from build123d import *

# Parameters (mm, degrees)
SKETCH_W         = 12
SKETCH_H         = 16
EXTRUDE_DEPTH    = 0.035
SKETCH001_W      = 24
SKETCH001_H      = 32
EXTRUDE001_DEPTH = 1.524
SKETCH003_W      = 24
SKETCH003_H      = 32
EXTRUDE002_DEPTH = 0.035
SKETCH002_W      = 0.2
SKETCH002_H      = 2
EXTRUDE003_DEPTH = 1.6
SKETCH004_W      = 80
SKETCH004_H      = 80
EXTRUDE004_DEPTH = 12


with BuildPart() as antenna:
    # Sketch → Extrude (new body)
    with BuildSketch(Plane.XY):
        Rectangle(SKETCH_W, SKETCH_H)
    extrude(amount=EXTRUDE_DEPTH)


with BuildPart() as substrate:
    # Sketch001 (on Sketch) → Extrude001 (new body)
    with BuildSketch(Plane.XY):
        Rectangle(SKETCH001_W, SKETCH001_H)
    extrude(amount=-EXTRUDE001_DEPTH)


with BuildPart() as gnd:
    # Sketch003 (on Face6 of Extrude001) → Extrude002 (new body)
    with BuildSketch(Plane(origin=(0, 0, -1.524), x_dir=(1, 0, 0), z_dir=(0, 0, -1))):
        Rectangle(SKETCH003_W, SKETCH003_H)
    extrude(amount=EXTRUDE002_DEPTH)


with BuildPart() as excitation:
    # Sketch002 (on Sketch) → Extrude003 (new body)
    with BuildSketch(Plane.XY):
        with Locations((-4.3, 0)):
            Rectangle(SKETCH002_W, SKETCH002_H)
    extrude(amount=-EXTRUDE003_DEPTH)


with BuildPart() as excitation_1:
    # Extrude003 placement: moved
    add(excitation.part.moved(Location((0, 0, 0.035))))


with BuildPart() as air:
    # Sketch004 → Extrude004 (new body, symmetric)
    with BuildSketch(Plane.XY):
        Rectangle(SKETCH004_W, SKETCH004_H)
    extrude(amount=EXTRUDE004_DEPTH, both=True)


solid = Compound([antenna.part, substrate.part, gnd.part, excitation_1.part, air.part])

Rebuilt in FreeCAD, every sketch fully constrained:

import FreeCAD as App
import Part
import Sketcher

V = App.Vector

doc = App.newDocument("Part")
params = doc.addObject("Spreadsheet::Sheet", "Params")
for row, (alias, value) in enumerate([
    ("sketch1_width", "12 mm"),
    ("sketch1_height", "16 mm"),
    ("pad1_length", "0.035 mm"),
    ("sketch2_width", "24 mm"),
    ("sketch2_height", "32 mm"),
    ("pad2_length", "1.524 mm"),
    ("sketch3_width", "24 mm"),
    ("sketch3_height", "32 mm"),
    ("pad3_length", "0.035 mm"),
    ("sketch4_height", "2 mm"),
    ("sketch4_width", "0.2 mm"),
    ("pad4_length", "1.6 mm"),
    ("sketch5_width", "80 mm"),
    ("pad5_length", "24 mm"),
], start=1):
    params.set(f"A{row}", alias)
    params.set(f"B{row}", "=" + value)
    params.setAlias(f"B{row}", alias)

body = doc.addObject("PartDesign::Body", "Body")

# Sketch on XY plane
sketch1 = body.newObject("Sketcher::SketchObject", "Sketch")
sketch1.AttachmentSupport = (doc.getObject("XY_Plane"), [""])
sketch1.MapMode = "FlatFace"
sketch1.addGeometry(Part.LineSegment(V(-6, 8, 0), V(-6, -8, 0)), False)
sketch1.addGeometry(Part.LineSegment(V(-6, -8, 0), V(6, -8, 0)), False)
sketch1.addGeometry(Part.LineSegment(V(6, -8, 0), V(6, 8, 0)), False)
sketch1.addGeometry(Part.LineSegment(V(6, 8, 0), V(-6, 8, 0)), False)
sketch1.addConstraint(Sketcher.Constraint("Coincident", 0, 2, 1, 1))
sketch1.addConstraint(Sketcher.Constraint("Coincident", 1, 2, 2, 1))
sketch1.addConstraint(Sketcher.Constraint("Coincident", 2, 2, 3, 1))
sketch1.addConstraint(Sketcher.Constraint("Coincident", 3, 2, 0, 1))
sketch1.addConstraint(Sketcher.Constraint("Vertical", 0))
sketch1.addConstraint(Sketcher.Constraint("Horizontal", 1))
sketch1.addConstraint(Sketcher.Constraint("Vertical", 2))
sketch1.addConstraint(Sketcher.Constraint("Horizontal", 3))
sketch1.addConstraint(Sketcher.Constraint("Symmetric", 0, 2, 2, 2, -1, 1))
sketch1.addConstraint(Sketcher.Constraint("DistanceX", 1, 1, 1, 2, 12.0))
sketch1.addConstraint(Sketcher.Constraint("DistanceY", 0, 2, 0, 1, 16.0))
sketch1.setExpression("Constraints[9]", "Params.sketch1_width")
sketch1.setExpression("Constraints[10]", "Params.sketch1_height")
pad1 = body.newObject("PartDesign::Pad", "Pad")
pad1.Profile = sketch1
pad1.setExpression("Length", "Params.pad1_length")
body2 = doc.addObject("PartDesign::Body", "Body001")

# Sketch on XY plane
sketch2 = body2.newObject("Sketcher::SketchObject", "Sketch001")
sketch2.AttachmentSupport = (doc.getObject("XY_Plane001"), [""])
sketch2.MapMode = "FlatFace"
sketch2.addGeometry(Part.LineSegment(V(-12, 16, 0), V(-12, -16, 0)), False)
sketch2.addGeometry(Part.LineSegment(V(-12, -16, 0), V(12, -16, 0)), False)
sketch2.addGeometry(Part.LineSegment(V(12, -16, 0), V(12, 16, 0)), False)
sketch2.addGeometry(Part.LineSegment(V(12, 16, 0), V(-12, 16, 0)), False)
sketch2.addConstraint(Sketcher.Constraint("Coincident", 0, 2, 1, 1))
sketch2.addConstraint(Sketcher.Constraint("Coincident", 1, 2, 2, 1))
sketch2.addConstraint(Sketcher.Constraint("Coincident", 2, 2, 3, 1))
sketch2.addConstraint(Sketcher.Constraint("Coincident", 3, 2, 0, 1))
sketch2.addConstraint(Sketcher.Constraint("Vertical", 0))
sketch2.addConstraint(Sketcher.Constraint("Horizontal", 1))
sketch2.addConstraint(Sketcher.Constraint("Vertical", 2))
sketch2.addConstraint(Sketcher.Constraint("Horizontal", 3))
sketch2.addConstraint(Sketcher.Constraint("Symmetric", 0, 2, 2, 2, -1, 1))
sketch2.addConstraint(Sketcher.Constraint("DistanceX", 1, 1, 1, 2, 24.0))
sketch2.addConstraint(Sketcher.Constraint("DistanceY", 0, 2, 0, 1, 32.0))
sketch2.setExpression("Constraints[9]", "Params.sketch2_width")
sketch2.setExpression("Constraints[10]", "Params.sketch2_height")
pad2 = body2.newObject("PartDesign::Pad", "Pad001")
pad2.Profile = sketch2
pad2.setExpression("Length", "Params.pad2_length")
pad2.Reversed = True
body3 = doc.addObject("PartDesign::Body", "Body002")

# Sketch on XY plane
sketch3 = body3.newObject("Sketcher::SketchObject", "Sketch002")
sketch3.AttachmentSupport = (doc.getObject("XY_Plane002"), [""])
sketch3.MapMode = "FlatFace"
sketch3.AttachmentOffset = App.Placement(V(0, 0, -1.524), App.Rotation())
sketch3.addGeometry(Part.LineSegment(V(-12, -16, 0), V(-12, 16, 0)), False)
sketch3.addGeometry(Part.LineSegment(V(-12, 16, 0), V(12, 16, 0)), False)
sketch3.addGeometry(Part.LineSegment(V(12, 16, 0), V(12, -16, 0)), False)
sketch3.addGeometry(Part.LineSegment(V(12, -16, 0), V(-12, -16, 0)), False)
sketch3.addConstraint(Sketcher.Constraint("Coincident", 0, 2, 1, 1))
sketch3.addConstraint(Sketcher.Constraint("Coincident", 1, 2, 2, 1))
sketch3.addConstraint(Sketcher.Constraint("Coincident", 2, 2, 3, 1))
sketch3.addConstraint(Sketcher.Constraint("Coincident", 3, 2, 0, 1))
sketch3.addConstraint(Sketcher.Constraint("Vertical", 0))
sketch3.addConstraint(Sketcher.Constraint("Horizontal", 1))
sketch3.addConstraint(Sketcher.Constraint("Vertical", 2))
sketch3.addConstraint(Sketcher.Constraint("Horizontal", 3))
sketch3.addConstraint(Sketcher.Constraint("Symmetric", 0, 2, 2, 2, -1, 1))
sketch3.addConstraint(Sketcher.Constraint("DistanceX", 1, 1, 1, 2, 24.0))
sketch3.addConstraint(Sketcher.Constraint("DistanceY", 0, 1, 0, 2, 32.0))
sketch3.setExpression("Constraints[9]", "Params.sketch3_width")
sketch3.setExpression("Constraints[10]", "Params.sketch3_height")
pad3 = body3.newObject("PartDesign::Pad", "Pad002")
pad3.Profile = sketch3
pad3.setExpression("Length", "Params.pad3_length")
pad3.Reversed = True
body4 = doc.addObject("PartDesign::Body", "Body003")

# Sketch on XY plane
sketch4 = body4.newObject("Sketcher::SketchObject", "Sketch003")
sketch4.AttachmentSupport = (doc.getObject("XY_Plane003"), [""])
sketch4.MapMode = "FlatFace"
sketch4.addGeometry(Part.LineSegment(V(-4.4, 1, 0), V(-4.4, -1, 0)), False)
sketch4.addGeometry(Part.LineSegment(V(-4.4, -1, 0), V(-4.2, -1, 0)), False)
sketch4.addGeometry(Part.LineSegment(V(-4.2, -1, 0), V(-4.2, 1, 0)), False)
sketch4.addGeometry(Part.LineSegment(V(-4.2, 1, 0), V(-4.4, 1, 0)), False)
sketch4.addConstraint(Sketcher.Constraint("Coincident", 0, 2, 1, 1))
sketch4.addConstraint(Sketcher.Constraint("Coincident", 1, 2, 2, 1))
sketch4.addConstraint(Sketcher.Constraint("Coincident", 2, 2, 3, 1))
sketch4.addConstraint(Sketcher.Constraint("Coincident", 3, 2, 0, 1))
sketch4.addConstraint(Sketcher.Constraint("Vertical", 0))
sketch4.addConstraint(Sketcher.Constraint("Horizontal", 1))
sketch4.addConstraint(Sketcher.Constraint("Vertical", 2))
sketch4.addConstraint(Sketcher.Constraint("Horizontal", 3))
sketch4.addConstraint(Sketcher.Constraint("DistanceY", 0, 2, 0, 1, 2.0))
sketch4.addConstraint(Sketcher.Constraint("DistanceX", 1, 1, 1, 2, 0.2))
sketch4.addConstraint(Sketcher.Constraint("DistanceY", 0, 2, -1, 1, 1.0))
sketch4.addConstraint(Sketcher.Constraint("DistanceX", 0, 2, -1, 1, 4.4))
sketch4.setExpression("Constraints[8]", "Params.sketch4_height")
sketch4.setExpression("Constraints[9]", "Params.sketch4_width")
pad4 = body4.newObject("PartDesign::Pad", "Pad003")
pad4.Profile = sketch4
pad4.setExpression("Length", "Params.pad4_length")
pad4.Reversed = True
body5 = doc.addObject("PartDesign::Body", "Body004")
doc.recompute()

body4.Placement = App.Placement(V(0, 0, 0.035), App.Rotation(V(0, 0, 1), 0))
boolean = body5.newObject("PartDesign::Boolean", "Boolean")
boolean.Type = "Fuse"
boolean.addObjects([body4])
body6 = doc.addObject("PartDesign::Body", "Body005")

# Sketch on XY plane
sketch5 = body6.newObject("Sketcher::SketchObject", "Sketch004")
sketch5.AttachmentSupport = (doc.getObject("XY_Plane005"), [""])
sketch5.MapMode = "FlatFace"
sketch5.addGeometry(Part.LineSegment(V(-40, 40, 0), V(-40, -40, 0)), False)
sketch5.addGeometry(Part.LineSegment(V(-40, -40, 0), V(40, -40, 0)), False)
sketch5.addGeometry(Part.LineSegment(V(40, -40, 0), V(40, 40, 0)), False)
sketch5.addGeometry(Part.LineSegment(V(40, 40, 0), V(-40, 40, 0)), False)
sketch5.addConstraint(Sketcher.Constraint("Coincident", 0, 2, 1, 1))
sketch5.addConstraint(Sketcher.Constraint("Coincident", 1, 2, 2, 1))
sketch5.addConstraint(Sketcher.Constraint("Coincident", 2, 2, 3, 1))
sketch5.addConstraint(Sketcher.Constraint("Coincident", 3, 2, 0, 1))
sketch5.addConstraint(Sketcher.Constraint("Vertical", 0))
sketch5.addConstraint(Sketcher.Constraint("Horizontal", 1))
sketch5.addConstraint(Sketcher.Constraint("Vertical", 2))
sketch5.addConstraint(Sketcher.Constraint("Horizontal", 3))
sketch5.addConstraint(Sketcher.Constraint("Symmetric", 0, 2, 2, 2, -1, 1))
sketch5.addConstraint(Sketcher.Constraint("Equal", 3, 0))
sketch5.addConstraint(Sketcher.Constraint("DistanceX", 1, 1, 1, 2, 80.0))
sketch5.setExpression("Constraints[10]", "Params.sketch5_width")
pad5 = body6.newObject("PartDesign::Pad", "Pad004")
pad5.Profile = sketch5
pad5.setExpression("Length", "Params.pad5_length")
pad5.Midplane = True

doc.recompute()
